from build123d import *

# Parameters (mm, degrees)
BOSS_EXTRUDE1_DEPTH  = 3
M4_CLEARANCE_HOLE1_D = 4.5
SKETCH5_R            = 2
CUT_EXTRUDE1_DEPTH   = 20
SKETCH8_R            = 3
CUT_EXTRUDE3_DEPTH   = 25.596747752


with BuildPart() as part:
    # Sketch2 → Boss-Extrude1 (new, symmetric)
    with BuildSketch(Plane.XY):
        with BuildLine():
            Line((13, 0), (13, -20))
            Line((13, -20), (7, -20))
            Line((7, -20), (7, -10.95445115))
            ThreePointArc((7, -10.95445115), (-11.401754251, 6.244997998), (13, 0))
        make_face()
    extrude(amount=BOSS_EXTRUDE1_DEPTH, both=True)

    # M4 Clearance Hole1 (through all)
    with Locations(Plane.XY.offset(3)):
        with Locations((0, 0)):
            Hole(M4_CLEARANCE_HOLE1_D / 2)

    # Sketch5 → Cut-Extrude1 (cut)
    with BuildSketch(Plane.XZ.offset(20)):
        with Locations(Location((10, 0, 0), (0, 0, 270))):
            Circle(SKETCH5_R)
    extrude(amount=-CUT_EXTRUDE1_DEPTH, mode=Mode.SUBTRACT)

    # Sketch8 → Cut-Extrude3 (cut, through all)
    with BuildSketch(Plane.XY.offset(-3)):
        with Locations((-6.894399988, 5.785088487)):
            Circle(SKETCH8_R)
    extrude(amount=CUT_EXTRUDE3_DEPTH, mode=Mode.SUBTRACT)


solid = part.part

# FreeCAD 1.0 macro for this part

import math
import FreeCAD as App
import Part
import Sketcher
Q = App.Units.Quantity

doc = App.newDocument("Part")
body = doc.addObject("PartDesign::Body", "Body")

sketch1 = doc.addObject("Sketcher::SketchObject", "Sketch")
body.addObject(sketch1)
sketch1.AttachmentSupport = (doc.XY_Plane, [""])
sketch1.MapMode = "FlatFace"
sketch1.addGeometry(Part.LineSegment(App.Vector(13, -20, 0), App.Vector(13, 0, 0)), False)
sketch1.addGeometry(Part.ArcOfCircle(Part.Circle(App.Vector(0, 0, 0), App.Vector(0, 0, 1), 13), math.radians(0), math.radians(303)), False)
sketch1.addGeometry(Part.LineSegment(App.Vector(7, -11, 0), App.Vector(7, -20, 0)), False)
sketch1.addGeometry(Part.LineSegment(App.Vector(7, -20, 0), App.Vector(13, -20, 0)), False)
sketch1.addConstraint(Sketcher.Constraint("Tangent", 0, 2, 1, 1))
sketch1.addConstraint(Sketcher.Constraint("Coincident", 1, 2, 2, 1))
sketch1.addConstraint(Sketcher.Constraint("Coincident", 2, 2, 3, 1))
sketch1.addConstraint(Sketcher.Constraint("Coincident", 3, 2, 0, 1))
sketch1.addConstraint(Sketcher.Constraint("Vertical", 0))
sketch1.addConstraint(Sketcher.Constraint("Vertical", 2))
sketch1.addConstraint(Sketcher.Constraint("Horizontal", 3))
sketch1.addConstraint(Sketcher.Constraint("Coincident", 1, 3, -1, 1))
sketch1.addConstraint(Sketcher.Constraint("Radius", 1, Q("13 mm")))
sketch1.addConstraint(Sketcher.Constraint("DistanceX", 3, 1, 3, 2, Q("6 mm")))
sketch1.addConstraint(Sketcher.Constraint("DistanceY", 0, 1, 0, 2, Q("20 mm")))
pad1 = doc.addObject("PartDesign::Pad", "Pad")
body.addObject(pad1)
pad1.Profile = sketch1
pad1.Length = 6
pad1.Midplane = True

sketch2 = doc.addObject("Sketcher::SketchObject", "Sketch001")
body.addObject(sketch2)
sketch2.AttachmentSupport = (doc.XY_Plane, [""])
sketch2.MapMode = "FlatFace"
sketch2.AttachmentOffset = App.Placement(App.Vector(0, 0, 3), App.Rotation())
sketch2.addGeometry(Part.Circle(App.Vector(0, 0, 0), App.Vector(0, 0, 1), 2.2), False)
sketch2.addConstraint(Sketcher.Constraint("Coincident", 0, 3, -1, 1))
sketch2.addConstraint(Sketcher.Constraint("Diameter", 0, Q("4.5 mm")))
doc.recompute()
hole = doc.addObject("PartDesign::Hole", "Hole")
body.addObject(hole)
hole.Profile = sketch2
hole.ThreadType = "None"
hole.Diameter = 4.5
hole.DepthType = "ThroughAll"

sketch3 = doc.addObject("Sketcher::SketchObject", "Sketch002")
body.addObject(sketch3)
sketch3.AttachmentSupport = (doc.XZ_Plane, [""])
sketch3.MapMode = "FlatFace"
sketch3.AttachmentOffset = App.Placement(App.Vector(0, 0, 20), App.Rotation())
sketch3.addGeometry(Part.Circle(App.Vector(10, 0, 0), App.Vector(0, 0, 1), 2), False)
sketch3.addConstraint(Sketcher.Constraint("PointOnObject", 0, 3, -1))
sketch3.addConstraint(Sketcher.Constraint("Diameter", 0, Q("4 mm")))
sketch3.addConstraint(Sketcher.Constraint("DistanceX", -1, 1, 0, 3, Q("10 mm")))
pocket1 = doc.addObject("PartDesign::Pocket", "Pocket")
body.addObject(pocket1)
pocket1.Profile = sketch3
pocket1.Length = 20

sketch4 = doc.addObject("Sketcher::SketchObject", "Sketch003")
body.addObject(sketch4)
sketch4.AttachmentSupport = (doc.XY_Plane, [""])
sketch4.MapMode = "FlatFace"
sketch4.AttachmentOffset = App.Placement(App.Vector(0, 0, -3), App.Rotation())
sketch4.addGeometry(Part.Circle(App.Vector(-6.9, 5.8, 0), App.Vector(0, 0, 1), 3), False)
sketch4.addConstraint(Sketcher.Constraint("Diameter", 0, Q("6 mm")))
sketch4.addConstraint(Sketcher.Constraint("DistanceX", 0, 3, -1, 1, Q("6.8944 mm")))
sketch4.addConstraint(Sketcher.Constraint("DistanceY", -1, 1, 0, 3, Q("5.785088 mm")))
pocket2 = doc.addObject("PartDesign::Pocket", "Pocket001")
body.addObject(pocket2)
pocket2.Profile = sketch4
pocket2.Type = "ThroughAll"
pocket2.Reversed = True

doc.recompute()
